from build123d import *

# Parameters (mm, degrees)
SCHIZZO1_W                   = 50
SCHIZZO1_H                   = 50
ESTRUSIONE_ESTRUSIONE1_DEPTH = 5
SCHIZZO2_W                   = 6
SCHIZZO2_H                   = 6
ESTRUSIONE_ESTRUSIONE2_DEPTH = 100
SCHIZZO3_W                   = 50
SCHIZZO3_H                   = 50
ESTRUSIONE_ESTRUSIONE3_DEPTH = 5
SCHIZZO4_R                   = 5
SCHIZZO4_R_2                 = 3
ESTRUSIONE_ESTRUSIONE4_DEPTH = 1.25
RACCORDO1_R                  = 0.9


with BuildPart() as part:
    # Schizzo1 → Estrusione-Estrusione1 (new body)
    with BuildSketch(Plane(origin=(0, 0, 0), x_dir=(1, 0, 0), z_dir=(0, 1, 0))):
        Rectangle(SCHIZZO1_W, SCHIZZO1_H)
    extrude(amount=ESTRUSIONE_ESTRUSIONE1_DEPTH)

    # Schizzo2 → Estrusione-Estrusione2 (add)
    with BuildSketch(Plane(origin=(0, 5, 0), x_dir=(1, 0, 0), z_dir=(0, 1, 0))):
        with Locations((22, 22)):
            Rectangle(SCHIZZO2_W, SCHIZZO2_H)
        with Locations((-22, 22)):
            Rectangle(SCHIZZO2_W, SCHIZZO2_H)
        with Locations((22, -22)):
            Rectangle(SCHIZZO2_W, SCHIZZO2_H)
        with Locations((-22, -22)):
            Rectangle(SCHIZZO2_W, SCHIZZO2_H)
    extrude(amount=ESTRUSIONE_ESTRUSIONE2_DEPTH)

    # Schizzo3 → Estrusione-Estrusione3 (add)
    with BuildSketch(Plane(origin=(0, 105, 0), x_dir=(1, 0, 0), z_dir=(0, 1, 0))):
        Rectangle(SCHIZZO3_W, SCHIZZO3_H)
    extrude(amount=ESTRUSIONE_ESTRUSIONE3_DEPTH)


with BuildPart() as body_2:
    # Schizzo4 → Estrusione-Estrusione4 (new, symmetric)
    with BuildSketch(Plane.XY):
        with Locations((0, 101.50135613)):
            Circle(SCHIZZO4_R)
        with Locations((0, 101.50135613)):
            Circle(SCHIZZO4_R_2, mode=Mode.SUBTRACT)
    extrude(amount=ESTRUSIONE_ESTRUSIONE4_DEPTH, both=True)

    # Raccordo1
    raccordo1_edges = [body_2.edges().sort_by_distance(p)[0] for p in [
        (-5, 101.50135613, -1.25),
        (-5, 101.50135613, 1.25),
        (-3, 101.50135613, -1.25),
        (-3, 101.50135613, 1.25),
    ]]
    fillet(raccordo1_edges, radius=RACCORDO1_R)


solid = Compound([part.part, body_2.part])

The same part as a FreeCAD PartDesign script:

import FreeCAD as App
import Part
import Sketcher
Q = App.Units.Quantity


def edges_at(feature, points):
    """Names of the edges that pass closest to the given points."""
    edges = feature.Shape.Edges
    near = lambda p: min(range(len(edges)), key=lambda i: edges[i].distToShape(Part.Vertex(*p))[0])
    return sorted({f"Edge{near(p) + 1}" for p in points})

doc = App.newDocument("Part")
body = doc.addObject("PartDesign::Body", "Body")

# Sketch on XZ plane
sketch1 = body.newObject("Sketcher::SketchObject", "Sketch")
sketch1.AttachmentSupport = (doc.getObject("XZ_Plane"), [""])
sketch1.MapMode = "FlatFace"
sketch1.addGeometry([
    Part.LineSegment(App.Vector(-25, -25, 0), App.Vector(-25, 25, 0)),
    Part.LineSegment(App.Vector(-25, 25, 0), App.Vector(25, 25, 0)),
    Part.LineSegment(App.Vector(25, 25, 0), App.Vector(25, -25, 0)),
    Part.LineSegment(App.Vector(25, -25, 0), App.Vector(-25, -25, 0)),
], False)
sketch1.addConstraint([
    Sketcher.Constraint("Coincident", 0, 2, 1, 1),
    Sketcher.Constraint("Coincident", 1, 2, 2, 1),
    Sketcher.Constraint("Coincident", 2, 2, 3, 1),
    Sketcher.Constraint("Coincident", 3, 2, 0, 1),
    Sketcher.Constraint("Vertical", 0),
    Sketcher.Constraint("Horizontal", 1),
    Sketcher.Constraint("Vertical", 2),
    Sketcher.Constraint("Horizontal", 3),
    Sketcher.Constraint("Symmetric", 0, 2, 2, 2, -1, 1),
    Sketcher.Constraint("Equal", 3, 0),
    Sketcher.Constraint("DistanceX", 1, 1, 1, 2, Q("50 mm")),
])
pad1 = body.newObject("PartDesign::Pad", "Pad")
pad1.Profile = sketch1
pad1.Length = 5
pad1.Reversed = True

# Sketch on XZ plane
sketch2 = body.newObject("Sketcher::SketchObject", "Sketch001")
sketch2.AttachmentSupport = (doc.getObject("XZ_Plane"), [""])
sketch2.MapMode = "FlatFace"
sketch2.AttachmentOffset = App.Placement(App.Vector(0, 0, -5), App.Rotation())
sketch2.addGeometry([
    Part.LineSegment(App.Vector(19, -25, 0), App.Vector(19, -19, 0)),  # 0
    Part.LineSegment(App.Vector(19, -19, 0), App.Vector(25, -19, 0)),  # 1
    Part.LineSegment(App.Vector(25, -19, 0), App.Vector(25, -25, 0)),  # 2
    Part.LineSegment(App.Vector(25, -25, 0), App.Vector(19, -25, 0)),  # 3
    Part.LineSegment(App.Vector(-25, -25, 0), App.Vector(-25, -19, 0)),  # 4
    Part.LineSegment(App.Vector(-25, -19, 0), App.Vector(-19, -19, 0)),  # 5
    Part.LineSegment(App.Vector(-19, -19, 0), App.Vector(-19, -25, 0)),  # 6
    Part.LineSegment(App.Vector(-19, -25, 0), App.Vector(-25, -25, 0)),  # 7
    Part.LineSegment(App.Vector(19, 19, 0), App.Vector(19, 25, 0)),  # 8
    Part.LineSegment(App.Vector(19, 25, 0), App.Vector(25, 25, 0)),  # 9
    Part.LineSegment(App.Vector(25, 25, 0), App.Vector(25, 19, 0)),  # 10
    Part.LineSegment(App.Vector(25, 19, 0), App.Vector(19, 19, 0)),  # 11
    Part.LineSegment(App.Vector(-25, 19, 0), App.Vector(-25, 25, 0)),  # 12
    Part.LineSegment(App.Vector(-25, 25, 0), App.Vector(-19, 25, 0)),  # 13
    Part.LineSegment(App.Vector(-19, 25, 0), App.Vector(-19, 19, 0)),  # 14
    Part.LineSegment(App.Vector(-19, 19, 0), App.Vector(-25, 19, 0)),  # 15
], False)
sketch2.addConstraint([
    Sketcher.Constraint("Coincident", 0, 2, 1, 1),
    Sketcher.Constraint("Coincident", 1, 2, 2, 1),
    Sketcher.Constraint("Coincident", 2, 2, 3, 1),
    Sketcher.Constraint("Coincident", 3, 2, 0, 1),
    Sketcher.Constraint("Coincident", 4, 2, 5, 1),
    Sketcher.Constraint("Coincident", 5, 2, 6, 1),
    Sketcher.Constraint("Coincident", 6, 2, 7, 1),
    Sketcher.Constraint("Coincident", 7, 2, 4, 1),
    Sketcher.Constraint("Coincident", 8, 2, 9, 1),
    Sketcher.Constraint("Coincident", 9, 2, 10, 1),
    Sketcher.Constraint("Coincident", 10, 2, 11, 1),
    Sketcher.Constraint("Coincident", 11, 2, 8, 1),
    Sketcher.Constraint("Coincident", 12, 2, 13, 1),
    Sketcher.Constraint("Coincident", 13, 2, 14, 1),
    Sketcher.Constraint("Coincident", 14, 2, 15, 1),
    Sketcher.Constraint("Coincident", 15, 2, 12, 1),
    Sketcher.Constraint("Vertical", 0),
    Sketcher.Constraint("Horizontal", 1),
    Sketcher.Constraint("Vertical", 2),
    Sketcher.Constraint("Horizontal", 3),
    Sketcher.Constraint("Vertical", 4),
    Sketcher.Constraint("Horizontal", 5),
    Sketcher.Constraint("Vertical", 6),
    Sketcher.Constraint("Horizontal", 7),
    Sketcher.Constraint("Vertical", 8),
    Sketcher.Constraint("Horizontal", 9),
    Sketcher.Constraint("Vertical", 10),
    Sketcher.Constraint("Horizontal", 11),
    Sketcher.Constraint("Vertical", 12),
    Sketcher.Constraint("Horizontal", 13),
    Sketcher.Constraint("Vertical", 14),
    Sketcher.Constraint("Horizontal", 15),
    Sketcher.Constraint("Symmetric", 6, 2, 8, 2, -1, 1),
    Sketcher.Constraint("Symmetric", 4, 2, 10, 2, -1, 1),
    Sketcher.Constraint("Symmetric", 2, 2, 12, 2, -1, 1),
    Sketcher.Constraint("Symmetric", 0, 2, 14, 2, -1, 1),
    Sketcher.Constraint("Symmetric", 1, 2, 4, 2, -2),
    Sketcher.Constraint("Symmetric", 3, 2, 6, 2, -2),
    Sketcher.Constraint("Equal", 15, 0),
    Sketcher.Constraint("DistanceX", 1, 1, 1, 2, Q("6 mm")),
    Sketcher.Constraint("DistanceX", -1, 1, 0, 2, Q("19 mm")),
    Sketcher.Constraint("DistanceY", 0, 2, -1, 1, Q("19 mm")),
])
pad2 = body.newObject("PartDesign::Pad", "Pad001")
pad2.Profile = sketch2
pad2.Length = 100
pad2.Reversed = True

# Sketch on XZ plane
sketch3 = body.newObject("Sketcher::SketchObject", "Sketch002")
sketch3.AttachmentSupport = (doc.getObject("XZ_Plane"), [""])
sketch3.MapMode = "FlatFace"
sketch3.AttachmentOffset = App.Placement(App.Vector(0, 0, -105), App.Rotation())
sketch3.addGeometry([
    Part.LineSegment(App.Vector(-25, -25, 0), App.Vector(-25, 25, 0)),
    Part.LineSegment(App.Vector(-25, 25, 0), App.Vector(25, 25, 0)),
    Part.LineSegment(App.Vector(25, 25, 0), App.Vector(25, -25, 0)),
    Part.LineSegment(App.Vector(25, -25, 0), App.Vector(-25, -25, 0)),
], False)
sketch3.addConstraint([
    Sketcher.Constraint("Coincident", 0, 2, 1, 1),
    Sketcher.Constraint("Coincident", 1, 2, 2, 1),
    Sketcher.Constraint("Coincident", 2, 2, 3, 1),
    Sketcher.Constraint("Coincident", 3, 2, 0, 1),
    Sketcher.Constraint("Vertical", 0),
    Sketcher.Constraint("Horizontal", 1),
    Sketcher.Constraint("Vertical", 2),
    Sketcher.Constraint("Horizontal", 3),
    Sketcher.Constraint("Symmetric", 0, 2, 2, 2, -1, 1),
    Sketcher.Constraint("Equal", 3, 0),
    Sketcher.Constraint("DistanceX", 1, 1, 1, 2, Q("50 mm")),
])
pad3 = body.newObject("PartDesign::Pad", "Pad002")
pad3.Profile = sketch3
pad3.Length = 5
pad3.Reversed = True
body2 = doc.addObject("PartDesign::Body", "Body001")

# Sketch on XY plane
sketch4 = body2.newObject("Sketcher::SketchObject", "Sketch003")
sketch4.AttachmentSupport = (doc.getObject("XY_Plane001"), [""])
sketch4.MapMode = "FlatFace"
sketch4.addGeometry([
    Part.Circle(App.Vector(0, 101.5, 0), App.Vector(0, 0, 1), 5),
    Part.Circle(App.Vector(0, 101.5, 0), App.Vector(0, 0, 1), 3),
], False)
sketch4.addConstraint([
    Sketcher.Constraint("Coincident", 1, 3, 0, 3),
    Sketcher.Constraint("PointOnObject", 0, 3, -2),
    Sketcher.Constraint("Diameter", 0, Q("10 mm")),
    Sketcher.Constraint("Diameter", 1, Q("6 mm")),
    Sketcher.Constraint("DistanceY", -1, 1, 0, 3, Q("101.501356 mm")),
])
pad4 = body2.newObject("PartDesign::Pad", "Pad003")
pad4.Profile = sketch4
pad4.Length = 2.5
pad4.Midplane = True
doc.recompute()

fillet = body2.newObject("PartDesign::Fillet", "Fillet")
fillet.Base = (pad4, edges_at(pad4, [
    (-5, 101.501, -1.25),
    (-5, 101.501, 1.25),
    (-3, 101.501, -1.25),
    (-3, 101.501, 1.25),
]))
fillet.Radius = 0.9

doc.recompute()
